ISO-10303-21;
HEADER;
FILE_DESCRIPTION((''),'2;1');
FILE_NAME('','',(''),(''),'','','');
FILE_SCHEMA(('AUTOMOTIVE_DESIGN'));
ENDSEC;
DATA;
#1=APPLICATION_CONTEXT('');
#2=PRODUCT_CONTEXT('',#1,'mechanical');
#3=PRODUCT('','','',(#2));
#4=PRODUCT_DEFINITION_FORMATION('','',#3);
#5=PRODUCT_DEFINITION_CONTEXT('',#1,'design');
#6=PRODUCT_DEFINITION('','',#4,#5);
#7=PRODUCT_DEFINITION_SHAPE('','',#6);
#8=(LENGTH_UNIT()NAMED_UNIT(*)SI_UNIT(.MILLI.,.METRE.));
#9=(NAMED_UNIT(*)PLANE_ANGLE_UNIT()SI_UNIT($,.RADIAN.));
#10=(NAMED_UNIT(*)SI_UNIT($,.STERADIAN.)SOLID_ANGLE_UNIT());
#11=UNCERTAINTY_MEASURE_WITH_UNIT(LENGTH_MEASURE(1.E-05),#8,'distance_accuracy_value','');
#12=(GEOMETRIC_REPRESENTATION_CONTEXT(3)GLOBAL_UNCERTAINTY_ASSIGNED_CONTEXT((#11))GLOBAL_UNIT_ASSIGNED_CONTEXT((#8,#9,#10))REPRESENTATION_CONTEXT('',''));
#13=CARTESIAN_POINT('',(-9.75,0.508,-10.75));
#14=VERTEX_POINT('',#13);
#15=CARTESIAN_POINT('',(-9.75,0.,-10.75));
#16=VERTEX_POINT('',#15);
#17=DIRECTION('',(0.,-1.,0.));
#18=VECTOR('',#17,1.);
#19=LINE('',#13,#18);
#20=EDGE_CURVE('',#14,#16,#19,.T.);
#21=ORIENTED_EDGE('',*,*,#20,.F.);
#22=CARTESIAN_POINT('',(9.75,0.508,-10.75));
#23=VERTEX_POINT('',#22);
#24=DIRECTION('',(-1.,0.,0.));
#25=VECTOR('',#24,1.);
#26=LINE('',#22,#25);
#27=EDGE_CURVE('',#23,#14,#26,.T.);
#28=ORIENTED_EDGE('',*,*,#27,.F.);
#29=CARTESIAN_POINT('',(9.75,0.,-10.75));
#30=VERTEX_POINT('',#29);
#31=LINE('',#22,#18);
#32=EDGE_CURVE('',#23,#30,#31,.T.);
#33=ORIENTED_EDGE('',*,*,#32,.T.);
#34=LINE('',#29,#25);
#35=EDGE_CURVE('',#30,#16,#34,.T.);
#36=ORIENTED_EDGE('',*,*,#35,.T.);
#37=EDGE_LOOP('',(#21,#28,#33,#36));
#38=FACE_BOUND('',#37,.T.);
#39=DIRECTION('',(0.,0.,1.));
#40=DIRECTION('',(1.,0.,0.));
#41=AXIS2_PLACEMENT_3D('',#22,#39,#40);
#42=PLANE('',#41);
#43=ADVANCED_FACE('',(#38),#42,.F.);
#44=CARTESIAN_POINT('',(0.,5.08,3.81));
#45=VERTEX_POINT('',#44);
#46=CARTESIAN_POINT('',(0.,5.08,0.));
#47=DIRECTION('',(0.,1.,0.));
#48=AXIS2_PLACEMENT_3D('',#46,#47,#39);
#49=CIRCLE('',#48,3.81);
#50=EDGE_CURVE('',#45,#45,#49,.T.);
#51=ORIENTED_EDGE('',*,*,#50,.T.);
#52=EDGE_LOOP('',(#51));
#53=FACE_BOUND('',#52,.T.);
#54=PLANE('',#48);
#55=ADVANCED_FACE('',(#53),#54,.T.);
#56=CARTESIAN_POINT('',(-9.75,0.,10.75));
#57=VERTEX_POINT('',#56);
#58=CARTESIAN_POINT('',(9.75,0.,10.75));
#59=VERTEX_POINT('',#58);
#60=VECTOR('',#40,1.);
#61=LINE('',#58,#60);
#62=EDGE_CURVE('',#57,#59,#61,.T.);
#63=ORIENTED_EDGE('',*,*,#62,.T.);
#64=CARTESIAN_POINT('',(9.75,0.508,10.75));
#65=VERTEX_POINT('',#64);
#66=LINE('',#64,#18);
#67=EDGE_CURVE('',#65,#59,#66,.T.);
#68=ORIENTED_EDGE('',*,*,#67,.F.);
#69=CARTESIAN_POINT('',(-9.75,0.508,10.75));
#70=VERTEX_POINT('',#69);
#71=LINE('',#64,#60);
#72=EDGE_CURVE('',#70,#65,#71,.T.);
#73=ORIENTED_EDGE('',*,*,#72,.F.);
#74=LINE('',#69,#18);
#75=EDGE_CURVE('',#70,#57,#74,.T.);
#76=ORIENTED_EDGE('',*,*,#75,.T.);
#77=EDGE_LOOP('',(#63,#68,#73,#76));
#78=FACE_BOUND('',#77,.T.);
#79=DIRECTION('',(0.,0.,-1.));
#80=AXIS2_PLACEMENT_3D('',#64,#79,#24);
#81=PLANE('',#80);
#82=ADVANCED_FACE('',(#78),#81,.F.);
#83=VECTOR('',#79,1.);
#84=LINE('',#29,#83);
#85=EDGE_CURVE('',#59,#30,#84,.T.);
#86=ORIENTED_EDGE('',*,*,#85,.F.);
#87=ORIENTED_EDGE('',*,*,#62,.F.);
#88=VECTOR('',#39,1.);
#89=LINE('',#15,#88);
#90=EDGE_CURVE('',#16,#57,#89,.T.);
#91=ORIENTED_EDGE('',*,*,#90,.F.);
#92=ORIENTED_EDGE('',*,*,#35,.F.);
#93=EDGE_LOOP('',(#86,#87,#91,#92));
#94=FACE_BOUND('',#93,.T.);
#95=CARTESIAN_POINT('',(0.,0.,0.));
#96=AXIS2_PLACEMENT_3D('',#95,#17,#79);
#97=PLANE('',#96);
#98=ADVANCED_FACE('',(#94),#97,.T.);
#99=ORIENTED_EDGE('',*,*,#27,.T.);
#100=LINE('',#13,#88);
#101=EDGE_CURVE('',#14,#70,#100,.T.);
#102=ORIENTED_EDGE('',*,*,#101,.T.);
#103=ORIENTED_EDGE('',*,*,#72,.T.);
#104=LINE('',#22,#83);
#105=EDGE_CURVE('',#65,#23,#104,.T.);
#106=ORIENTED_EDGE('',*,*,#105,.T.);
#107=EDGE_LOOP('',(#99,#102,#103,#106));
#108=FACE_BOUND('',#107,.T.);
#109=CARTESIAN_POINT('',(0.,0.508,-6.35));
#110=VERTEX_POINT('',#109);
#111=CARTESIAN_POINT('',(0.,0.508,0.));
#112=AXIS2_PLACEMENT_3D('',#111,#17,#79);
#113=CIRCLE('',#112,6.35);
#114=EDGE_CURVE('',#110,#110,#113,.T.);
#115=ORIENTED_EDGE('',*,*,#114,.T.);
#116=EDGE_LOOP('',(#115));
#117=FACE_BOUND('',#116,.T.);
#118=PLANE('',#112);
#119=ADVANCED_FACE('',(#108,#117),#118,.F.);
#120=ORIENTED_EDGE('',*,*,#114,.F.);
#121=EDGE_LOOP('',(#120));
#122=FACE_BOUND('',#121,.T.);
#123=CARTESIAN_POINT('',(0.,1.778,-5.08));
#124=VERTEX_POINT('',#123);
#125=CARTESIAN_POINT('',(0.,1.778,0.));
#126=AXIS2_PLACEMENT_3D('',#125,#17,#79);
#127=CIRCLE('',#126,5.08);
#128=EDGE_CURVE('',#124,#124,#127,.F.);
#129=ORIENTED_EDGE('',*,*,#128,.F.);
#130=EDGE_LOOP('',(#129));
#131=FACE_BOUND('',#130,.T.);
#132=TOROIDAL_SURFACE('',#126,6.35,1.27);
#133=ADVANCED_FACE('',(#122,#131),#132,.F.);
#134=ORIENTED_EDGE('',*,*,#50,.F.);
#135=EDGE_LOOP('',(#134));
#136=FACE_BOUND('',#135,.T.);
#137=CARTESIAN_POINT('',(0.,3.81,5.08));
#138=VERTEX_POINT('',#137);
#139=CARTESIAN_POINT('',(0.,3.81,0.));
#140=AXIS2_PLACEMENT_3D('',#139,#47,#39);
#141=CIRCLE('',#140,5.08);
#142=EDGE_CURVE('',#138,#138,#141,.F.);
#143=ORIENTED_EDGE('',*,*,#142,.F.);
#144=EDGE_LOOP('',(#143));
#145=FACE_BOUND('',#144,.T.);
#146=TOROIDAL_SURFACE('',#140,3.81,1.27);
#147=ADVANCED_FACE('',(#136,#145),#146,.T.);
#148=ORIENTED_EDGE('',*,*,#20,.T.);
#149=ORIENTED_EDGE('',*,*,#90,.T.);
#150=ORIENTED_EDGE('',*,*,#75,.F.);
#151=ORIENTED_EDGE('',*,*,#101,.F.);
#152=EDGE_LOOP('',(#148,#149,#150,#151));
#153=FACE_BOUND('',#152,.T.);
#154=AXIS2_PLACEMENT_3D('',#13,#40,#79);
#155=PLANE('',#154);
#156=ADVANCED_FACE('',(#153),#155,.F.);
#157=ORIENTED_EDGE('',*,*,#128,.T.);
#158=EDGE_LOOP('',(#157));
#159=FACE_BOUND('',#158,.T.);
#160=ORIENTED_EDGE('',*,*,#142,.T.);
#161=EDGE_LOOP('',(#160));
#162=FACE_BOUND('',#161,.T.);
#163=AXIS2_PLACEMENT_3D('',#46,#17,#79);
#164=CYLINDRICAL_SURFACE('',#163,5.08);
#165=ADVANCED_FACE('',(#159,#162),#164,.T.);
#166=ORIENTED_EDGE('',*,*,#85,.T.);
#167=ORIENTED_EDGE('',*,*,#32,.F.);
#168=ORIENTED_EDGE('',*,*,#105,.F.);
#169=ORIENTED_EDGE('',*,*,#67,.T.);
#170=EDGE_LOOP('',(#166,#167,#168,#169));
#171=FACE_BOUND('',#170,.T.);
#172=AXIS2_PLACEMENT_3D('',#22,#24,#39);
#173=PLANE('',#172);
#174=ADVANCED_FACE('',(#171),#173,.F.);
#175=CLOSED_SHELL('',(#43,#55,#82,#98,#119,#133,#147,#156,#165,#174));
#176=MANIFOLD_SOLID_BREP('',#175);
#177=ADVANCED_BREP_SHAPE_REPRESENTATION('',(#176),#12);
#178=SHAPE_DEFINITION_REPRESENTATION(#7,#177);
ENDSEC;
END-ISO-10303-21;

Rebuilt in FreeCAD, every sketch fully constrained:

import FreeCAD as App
import Part
import Sketcher
from FreeCAD import Vector
Q = App.Units.Quantity


def edges_at(feature, points):
    """Names of the edges that pass closest to the given points."""
    edges = feature.Shape.Edges
    near = lambda p: min(range(len(edges)), key=lambda i: edges[i].distToShape(Part.Vertex(*p))[0])
    return sorted({f"Edge{near(p) + 1}" for p in points})

doc = App.newDocument("Part")
body = doc.addObject("PartDesign::Body", "Body")

# Sketch on XZ plane
sketch1 = body.newObject("Sketcher::SketchObject", "Sketch")
sketch1.AttachmentSupport = (doc.getObject("XZ_Plane"), [""])
sketch1.MapMode = "FlatFace"
sketch1.addGeometry(Part.LineSegment(Vector(-10, -11, 0), Vector(-10, 11, 0)), False)
sketch1.addGeometry(Part.LineSegment(Vector(-10, 11, 0), Vector(10, 11, 0)), False)
sketch1.addGeometry(Part.LineSegment(Vector(10, 11, 0), Vector(10, -11, 0)), False)
sketch1.addGeometry(Part.LineSegment(Vector(10, -11, 0), Vector(-10, -11, 0)), False)
sketch1.addConstraint(Sketcher.Constraint("Coincident", 0, 2, 1, 1))
sketch1.addConstraint(Sketcher.Constraint("Coincident", 1, 2, 2, 1))
sketch1.addConstraint(Sketcher.Constraint("Coincident", 2, 2, 3, 1))
sketch1.addConstraint(Sketcher.Constraint("Coincident", 3, 2, 0, 1))
sketch1.addConstraint(Sketcher.Constraint("Vertical", 0))
sketch1.addConstraint(Sketcher.Constraint("Horizontal", 1))
sketch1.addConstraint(Sketcher.Constraint("Vertical", 2))
sketch1.addConstraint(Sketcher.Constraint("Horizontal", 3))
sketch1.addConstraint(Sketcher.Constraint("Symmetric", 0, 2, 2, 2, -1, 1))
sketch1.addConstraint(Sketcher.Constraint("DistanceX", 1, 1, 1, 2, 19.5))
sketch1.addConstraint(Sketcher.Constraint("DistanceY", 0, 1, 0, 2, 21.5))
pad1 = body.newObject("PartDesign::Pad", "Pad")
pad1.Profile = sketch1
pad1.Length = Q("0.02 in")
pad1.Reversed = True

# Sketch on XZ plane
sketch2 = body.newObject("Sketcher::SketchObject", "Sketch001")
sketch2.AttachmentSupport = (doc.getObject("XZ_Plane"), [""])
sketch2.MapMode = "FlatFace"
sketch2.addGeometry(Part.Circle(Vector(0, 0, 0), Vector(0, 0, 1), 5), False)
sketch2.addConstraint(Sketcher.Constraint("Coincident", 0, 3, -1, 1))
sketch2.addConstraint(Sketcher.Constraint("Diameter", 0, Q("0.4 in")))
pad2 = body.newObject("PartDesign::Pad", "Pad001")
pad2.Profile = sketch2
pad2.Length = Q("0.2 in")
pad2.Reversed = True
doc.recompute()

fillet = body.newObject("PartDesign::Fillet", "Fillet")
fillet.Base = (pad2, edges_at(pad2, [(-5.08, 0.508, 0), (-5.08, 5.08, 0)]))
fillet.Radius = Q("0.05 in")

doc.recompute()
